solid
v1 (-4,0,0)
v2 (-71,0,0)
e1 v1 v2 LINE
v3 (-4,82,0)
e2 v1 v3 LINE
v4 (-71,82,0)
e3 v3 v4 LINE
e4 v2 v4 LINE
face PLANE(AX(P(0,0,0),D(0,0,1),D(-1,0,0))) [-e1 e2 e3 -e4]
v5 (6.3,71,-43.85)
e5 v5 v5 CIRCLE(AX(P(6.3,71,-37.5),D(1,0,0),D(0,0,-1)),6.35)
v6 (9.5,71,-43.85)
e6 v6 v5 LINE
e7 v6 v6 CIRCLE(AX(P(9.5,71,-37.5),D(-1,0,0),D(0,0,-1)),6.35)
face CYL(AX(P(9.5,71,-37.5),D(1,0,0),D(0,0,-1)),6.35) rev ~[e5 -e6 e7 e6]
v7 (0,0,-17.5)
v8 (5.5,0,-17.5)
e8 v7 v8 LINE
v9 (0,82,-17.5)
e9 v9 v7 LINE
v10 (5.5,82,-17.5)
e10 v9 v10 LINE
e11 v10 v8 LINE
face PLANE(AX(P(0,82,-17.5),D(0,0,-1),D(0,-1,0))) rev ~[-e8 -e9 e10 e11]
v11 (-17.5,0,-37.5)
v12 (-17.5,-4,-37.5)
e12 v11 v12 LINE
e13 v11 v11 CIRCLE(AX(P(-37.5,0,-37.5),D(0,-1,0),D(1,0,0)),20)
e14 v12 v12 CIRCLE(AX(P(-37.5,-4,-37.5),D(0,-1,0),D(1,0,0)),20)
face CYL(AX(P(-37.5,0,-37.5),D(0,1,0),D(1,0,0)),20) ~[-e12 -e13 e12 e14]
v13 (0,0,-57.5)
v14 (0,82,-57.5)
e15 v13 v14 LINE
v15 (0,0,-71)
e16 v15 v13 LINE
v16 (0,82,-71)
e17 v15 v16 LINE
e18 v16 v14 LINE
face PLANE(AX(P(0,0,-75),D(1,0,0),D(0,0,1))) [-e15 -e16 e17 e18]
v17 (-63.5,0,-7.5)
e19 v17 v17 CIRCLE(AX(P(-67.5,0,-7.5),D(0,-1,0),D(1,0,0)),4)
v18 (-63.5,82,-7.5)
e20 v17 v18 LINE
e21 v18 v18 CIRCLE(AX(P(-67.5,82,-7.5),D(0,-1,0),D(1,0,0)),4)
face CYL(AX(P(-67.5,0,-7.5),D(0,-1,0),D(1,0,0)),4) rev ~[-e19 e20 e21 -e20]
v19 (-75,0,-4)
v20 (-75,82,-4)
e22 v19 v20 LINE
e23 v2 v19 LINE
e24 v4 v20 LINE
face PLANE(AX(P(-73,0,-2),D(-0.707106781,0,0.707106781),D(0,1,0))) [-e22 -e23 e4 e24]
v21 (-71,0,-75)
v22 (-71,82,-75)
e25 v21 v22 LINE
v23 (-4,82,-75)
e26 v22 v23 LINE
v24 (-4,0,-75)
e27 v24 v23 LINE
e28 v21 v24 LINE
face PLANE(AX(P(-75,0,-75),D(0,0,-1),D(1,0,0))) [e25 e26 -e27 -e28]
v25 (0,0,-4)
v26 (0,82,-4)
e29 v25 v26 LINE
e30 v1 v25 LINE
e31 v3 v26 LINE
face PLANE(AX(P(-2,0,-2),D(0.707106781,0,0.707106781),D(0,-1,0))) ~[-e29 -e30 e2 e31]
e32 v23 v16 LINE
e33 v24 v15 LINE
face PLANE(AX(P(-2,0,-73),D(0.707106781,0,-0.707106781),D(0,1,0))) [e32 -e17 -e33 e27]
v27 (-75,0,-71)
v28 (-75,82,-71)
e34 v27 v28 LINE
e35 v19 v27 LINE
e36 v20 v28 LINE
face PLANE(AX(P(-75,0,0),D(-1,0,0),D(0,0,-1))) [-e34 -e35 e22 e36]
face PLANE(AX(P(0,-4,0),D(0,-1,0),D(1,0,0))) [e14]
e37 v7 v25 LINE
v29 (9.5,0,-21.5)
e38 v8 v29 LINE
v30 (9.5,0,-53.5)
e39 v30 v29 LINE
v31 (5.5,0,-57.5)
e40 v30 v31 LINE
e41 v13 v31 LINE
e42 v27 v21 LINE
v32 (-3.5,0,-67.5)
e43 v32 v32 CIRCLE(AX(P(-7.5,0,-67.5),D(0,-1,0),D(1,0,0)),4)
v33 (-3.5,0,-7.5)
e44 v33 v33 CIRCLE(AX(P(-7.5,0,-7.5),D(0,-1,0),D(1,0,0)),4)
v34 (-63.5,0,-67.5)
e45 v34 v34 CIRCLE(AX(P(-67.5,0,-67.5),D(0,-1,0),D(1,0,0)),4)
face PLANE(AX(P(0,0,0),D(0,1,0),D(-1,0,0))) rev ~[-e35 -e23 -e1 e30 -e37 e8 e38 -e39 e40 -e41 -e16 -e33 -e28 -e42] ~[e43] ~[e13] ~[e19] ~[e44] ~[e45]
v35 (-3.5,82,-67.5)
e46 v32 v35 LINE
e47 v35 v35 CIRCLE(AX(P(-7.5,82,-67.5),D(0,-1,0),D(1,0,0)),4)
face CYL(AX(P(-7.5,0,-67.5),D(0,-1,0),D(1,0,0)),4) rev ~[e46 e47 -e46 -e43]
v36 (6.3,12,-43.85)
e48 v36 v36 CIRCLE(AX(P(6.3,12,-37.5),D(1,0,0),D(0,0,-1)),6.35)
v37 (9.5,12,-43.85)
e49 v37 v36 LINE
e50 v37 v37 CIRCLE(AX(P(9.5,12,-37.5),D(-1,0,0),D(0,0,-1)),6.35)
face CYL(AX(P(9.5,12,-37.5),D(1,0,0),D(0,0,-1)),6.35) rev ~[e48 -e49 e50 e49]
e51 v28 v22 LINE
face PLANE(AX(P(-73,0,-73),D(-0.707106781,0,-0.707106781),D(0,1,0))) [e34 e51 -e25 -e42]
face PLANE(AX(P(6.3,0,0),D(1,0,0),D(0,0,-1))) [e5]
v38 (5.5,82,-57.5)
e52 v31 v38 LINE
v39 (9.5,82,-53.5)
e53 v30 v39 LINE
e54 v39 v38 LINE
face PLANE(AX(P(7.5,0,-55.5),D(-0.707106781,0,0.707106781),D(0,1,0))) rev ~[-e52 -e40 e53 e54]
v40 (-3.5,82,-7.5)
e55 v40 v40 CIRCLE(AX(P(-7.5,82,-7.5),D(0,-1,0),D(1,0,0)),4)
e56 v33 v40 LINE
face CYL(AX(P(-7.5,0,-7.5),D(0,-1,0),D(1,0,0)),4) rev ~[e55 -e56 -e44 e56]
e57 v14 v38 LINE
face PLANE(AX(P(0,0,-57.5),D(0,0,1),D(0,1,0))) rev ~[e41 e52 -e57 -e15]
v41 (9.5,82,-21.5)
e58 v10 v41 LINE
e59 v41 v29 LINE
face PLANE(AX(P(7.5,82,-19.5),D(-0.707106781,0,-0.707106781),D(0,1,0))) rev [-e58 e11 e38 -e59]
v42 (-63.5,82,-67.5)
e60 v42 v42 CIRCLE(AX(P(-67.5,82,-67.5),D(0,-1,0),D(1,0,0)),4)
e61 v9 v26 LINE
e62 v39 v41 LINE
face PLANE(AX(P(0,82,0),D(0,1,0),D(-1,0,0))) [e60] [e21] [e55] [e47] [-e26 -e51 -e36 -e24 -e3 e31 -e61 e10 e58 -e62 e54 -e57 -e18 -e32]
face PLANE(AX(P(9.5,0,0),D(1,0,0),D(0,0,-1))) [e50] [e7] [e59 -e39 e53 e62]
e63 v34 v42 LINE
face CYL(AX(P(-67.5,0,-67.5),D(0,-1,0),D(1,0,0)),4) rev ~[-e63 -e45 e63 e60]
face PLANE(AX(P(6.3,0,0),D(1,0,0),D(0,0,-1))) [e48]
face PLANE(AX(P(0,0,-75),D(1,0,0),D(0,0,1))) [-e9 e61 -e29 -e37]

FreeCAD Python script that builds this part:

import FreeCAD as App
import Part
import Sketcher

V = App.Vector
Q = App.Units.Quantity


def edges_at(feature, points):
    """Names of the edges that pass closest to the given points."""
    edges = feature.Shape.Edges
    near = lambda p: min(range(len(edges)), key=lambda i: edges[i].distToShape(Part.Vertex(*p))[0])
    return sorted({f"Edge{near(p) + 1}" for p in points})


def add_polygon(sketch, points):
    """Adds a closed chain of lines whose ends are joined by coincident constraints."""
    first, n = sketch.GeometryCount, len(points)
    for a, b in zip(points, points[1:] + points[:1]):
        sketch.addGeometry(Part.LineSegment(App.Vector(*a, 0), App.Vector(*b, 0)), False)
    for i in range(n):
        sketch.addConstraint(Sketcher.Constraint("Coincident", first + i, 2, first + (i + 1) % n, 1))

doc = App.newDocument("Part")
body = doc.addObject("PartDesign::Body", "Body")

# Sketch on XZ plane
sketch1 = body.newObject("Sketcher::SketchObject", "Sketch")
sketch1.AttachmentSupport = (doc.getObject("XZ_Plane"), [""])
sketch1.MapMode = "FlatFace"
add_polygon(sketch1, [(-75, 0), (0, 0), (0, -75), (-75, -75)])  # lines 0-3
sketch1.addConstraint([
    Sketcher.Constraint("Horizontal", 0),
    Sketcher.Constraint("Vertical", 1),
    Sketcher.Constraint("Horizontal", 2),
    Sketcher.Constraint("Vertical", 3),
    Sketcher.Constraint("Coincident", 0, 2, -1, 1),
    Sketcher.Constraint("Equal", 2, 1),
    Sketcher.Constraint("DistanceX", 0, 1, 0, 2, Q("75 mm")),
])
pad1 = body.newObject("PartDesign::Pad", "Pad")
pad1.Profile = sketch1
pad1.Length = 82
pad1.Reversed = True

# Sketch on XZ plane
sketch2 = body.newObject("Sketcher::SketchObject", "Sketch001")
sketch2.AttachmentSupport = (doc.getObject("XZ_Plane"), [""])
sketch2.MapMode = "FlatFace"
sketch2.addGeometry(Part.Circle(V(-38, -38, 0), V(0, 0, 1), 20), False)
sketch2.addConstraint([
    Sketcher.Constraint("Diameter", 0, Q("40 mm")),
    Sketcher.Constraint("DistanceX", 0, 3, -1, 1, Q("37.5 mm")),
    Sketcher.Constraint("DistanceY", 0, 3, -1, 1, Q("37.5 mm")),
])
pad2 = body.newObject("PartDesign::Pad", "Pad001")
pad2.Profile = sketch2
pad2.Length = 4

# Sketch on XZ plane
sketch3 = body.newObject("Sketcher::SketchObject", "Sketch002")
sketch3.AttachmentSupport = (doc.getObject("XZ_Plane"), [""])
sketch3.MapMode = "FlatFace"
sketch3.addGeometry([
    Part.Circle(V(-67.5, -7.5, 0), V(0, 0, 1), 4),
    Part.Circle(V(-7.5, -7.5, 0), V(0, 0, 1), 4),
    Part.Circle(V(-7.5, -67.5, 0), V(0, 0, 1), 4),
    Part.Circle(V(-67.5, -67.5, 0), V(0, 0, 1), 4),
], False)
sketch3.addConstraint([
    Sketcher.Constraint("Equal", 0, 1),
    Sketcher.Constraint("Equal", 1, 2),
    Sketcher.Constraint("Equal", 2, 3),
    Sketcher.Constraint("Horizontal", 0, 3, 1, 3),
    Sketcher.Constraint("Horizontal", 2, 3, 3, 3),
    Sketcher.Constraint("Vertical", 1, 3, 2, 3),
    Sketcher.Constraint("Vertical", 0, 3, 3, 3),
    Sketcher.Constraint("Diameter", 0, Q("8 mm")),
    Sketcher.Constraint("DistanceX", 0, 3, 1, 3, Q("60 mm")),
    Sketcher.Constraint("DistanceY", 2, 3, 1, 3, Q("60 mm")),
    Sketcher.Constraint("DistanceY", 0, 3, -1, 1, Q("7.5 mm")),
    Sketcher.Constraint("DistanceX", 1, 3, -1, 1, Q("7.5 mm")),
])
pocket1 = body.newObject("PartDesign::Pocket", "Pocket")
pocket1.Profile = sketch3
pocket1.Length = 120.8875

# Sketch on YZ plane
sketch4 = body.newObject("Sketcher::SketchObject", "Sketch003")
sketch4.AttachmentSupport = (doc.getObject("YZ_Plane"), [""])
sketch4.MapMode = "FlatFace"
add_polygon(sketch4, [(0, -18), (0, -58), (82, -58), (82, -18)])  # lines 0-3
sketch4.addConstraint([
    Sketcher.Constraint("Vertical", 0),
    Sketcher.Constraint("Horizontal", 1),
    Sketcher.Constraint("Vertical", 2),
    Sketcher.Constraint("Horizontal", 3),
    Sketcher.Constraint("PointOnObject", 0, 2, -2),
    Sketcher.Constraint("DistanceY", 0, 2, 0, 1, Q("40 mm")),
    Sketcher.Constraint("DistanceY", 2, 2, -1, 1, Q("17.5 mm")),
    Sketcher.Constraint("DistanceX", 1, 1, 1, 2, Q("82 mm")),
])
pad3 = body.newObject("PartDesign::Pad", "Pad002")
pad3.Profile = sketch4
pad3.Length = 9.5

# Sketch on YZ plane
sketch5 = body.newObject("Sketcher::SketchObject", "Sketch004")
sketch5.AttachmentSupport = (doc.getObject("YZ_Plane"), [""])
sketch5.MapMode = "FlatFace"
sketch5.AttachmentOffset = App.Placement(V(0, 0, 9.5), App.Rotation())
sketch5.addGeometry([
    Part.Circle(V(12, -38, 0), V(0, 0, 1), 6),
    Part.Circle(V(71, -38, 0), V(0, 0, 1), 6),
], False)
sketch5.addConstraint([
    Sketcher.Constraint("Equal", 0, 1),
    Sketcher.Constraint("Horizontal", 0, 3, 1, 3),
    Sketcher.Constraint("Diameter", 0, Q("12.7 mm")),
    Sketcher.Constraint("DistanceX", -1, 1, 0, 3, Q("12 mm")),
    Sketcher.Constraint("DistanceX", -1, 1, 1, 3, Q("71 mm")),
    Sketcher.Constraint("DistanceY", 0, 3, -1, 1, Q("37.5 mm")),
])
pocket2 = body.newObject("PartDesign::Pocket", "Pocket001")
pocket2.Profile = sketch5
pocket2.Length = 3.2
doc.recompute()

chamfer = body.newObject("PartDesign::Chamfer", "Chamfer")
chamfer.Base = (pocket2, edges_at(pocket2, [
    (0, 41, -75),
    (-75, 41, -75),
    (0, 41, 0),
    (-75, 41, 0),
]))
chamfer.Size = 4
doc.recompute()

chamfer2 = body.newObject("PartDesign::Chamfer", "Chamfer001")
chamfer2.Base = (chamfer, edges_at(chamfer, [(9.5, 41, -17.5), (9.5, 41, -57.5)]))
chamfer2.Size = 4

doc.recompute()
